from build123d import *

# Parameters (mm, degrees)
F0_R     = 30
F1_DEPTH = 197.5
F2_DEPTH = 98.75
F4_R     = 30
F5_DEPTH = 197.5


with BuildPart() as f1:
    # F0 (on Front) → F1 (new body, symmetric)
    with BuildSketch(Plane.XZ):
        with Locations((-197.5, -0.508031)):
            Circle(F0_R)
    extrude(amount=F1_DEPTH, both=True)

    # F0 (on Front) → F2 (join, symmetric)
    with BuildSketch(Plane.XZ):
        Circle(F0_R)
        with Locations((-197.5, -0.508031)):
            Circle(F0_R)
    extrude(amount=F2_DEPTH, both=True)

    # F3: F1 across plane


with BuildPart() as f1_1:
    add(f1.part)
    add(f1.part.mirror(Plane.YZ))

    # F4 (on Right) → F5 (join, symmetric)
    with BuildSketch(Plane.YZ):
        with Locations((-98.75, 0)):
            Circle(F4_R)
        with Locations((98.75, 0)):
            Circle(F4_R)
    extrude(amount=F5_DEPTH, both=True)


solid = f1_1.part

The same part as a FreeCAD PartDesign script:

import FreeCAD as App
import Part
import Sketcher

V = App.Vector
Q = App.Units.Quantity

doc = App.newDocument("Part")
params = doc.addObject("Spreadsheet::Sheet", "Params")
for row, (alias, value) in enumerate([
    ("sketch1_diameter", "60 mm"),
    ("pad1_length", "395 mm"),
    ("sketch2_diameter", "60 mm"),
    ("pad2_length", "197.5 mm"),
    ("sketch3_diameter", "60 mm"),
    ("pad3_length", "395 mm"),
], start=1):
    params.set(f"A{row}", alias)
    params.set(f"B{row}", "=" + value)
    params.setAlias(f"B{row}", alias)

body = doc.addObject("PartDesign::Body", "Body")
body.AllowCompound = True

# Sketch on XZ plane
sketch1 = doc.addObject("Sketcher::SketchObject", "Sketch")
body.addObject(sketch1)
sketch1.AttachmentSupport = (doc.XZ_Plane, [""])
sketch1.MapMode = "FlatFace"
sketch1.addGeometry(Part.Circle(V(-198, -1, 0), V(0, 0, 1), 30), False)
sketch1.addConstraint(Sketcher.Constraint("Diameter", 0, Q("60 mm")))
sketch1.addConstraint(Sketcher.Constraint("DistanceX", 0, 3, -1, 1, Q("197.5 mm")))
sketch1.addConstraint(Sketcher.Constraint("DistanceY", 0, 3, -1, 1, Q("0.508031 mm")))
sketch1.setExpression("Constraints[0]", "Params.sketch1_diameter")
pad1 = doc.addObject("PartDesign::Pad", "Pad")
body.addObject(pad1)
pad1.Profile = sketch1
pad1.setExpression("Length", "Params.pad1_length")
pad1.Midplane = True

# Sketch on XZ plane
sketch2 = doc.addObject("Sketcher::SketchObject", "Sketch001")
body.addObject(sketch2)
sketch2.AttachmentSupport = (doc.XZ_Plane, [""])
sketch2.MapMode = "FlatFace"
sketch2.addGeometry(Part.Circle(V(0, 0, 0), V(0, 0, 1), 30), False)
sketch2.addGeometry(Part.Circle(V(-198, -1, 0), V(0, 0, 1), 30), False)
sketch2.addConstraint(Sketcher.Constraint("Coincident", 0, 3, -1, 1))
sketch2.addConstraint(Sketcher.Constraint("Equal", 0, 1))
sketch2.addConstraint(Sketcher.Constraint("Diameter", 0, Q("60 mm")))
sketch2.addConstraint(Sketcher.Constraint("DistanceX", 1, 3, -1, 1, Q("197.5 mm")))
sketch2.addConstraint(Sketcher.Constraint("DistanceY", 1, 3, -1, 1, Q("0.508031 mm")))
sketch2.setExpression("Constraints[2]", "Params.sketch2_diameter")
pad2 = doc.addObject("PartDesign::Pad", "Pad001")
body.addObject(pad2)
pad2.Profile = sketch2
pad2.setExpression("Length", "Params.pad2_length")
pad2.Midplane = True
body2 = doc.addObject("PartDesign::Body", "Body001")
body2.AllowCompound = True
doc.recompute()

body2.BaseFeature = body
doc.recompute()

mirroring = doc.addObject("Part::Mirroring", "Mirroring")
mirroring.Source = body
mirroring.Base = V(0, 0, 0)
mirroring.Normal = V(1, 0, 0)
body3 = doc.addObject("PartDesign::Body", "Body002")
body3.BaseFeature = mirroring
boolean = doc.addObject("PartDesign::Boolean", "Boolean")
body2.addObject(boolean)
boolean.Type = "Fuse"
boolean.addObjects([body3])
doc.recompute()

# Sketch on YZ plane
sketch3 = doc.addObject("Sketcher::SketchObject", "Sketch002")
body2.addObject(sketch3)
sketch3.AttachmentSupport = (doc.getObject("YZ_Plane001"), [""])
sketch3.MapMode = "FlatFace"
sketch3.addGeometry(Part.Circle(V(-99, 0, 0), V(0, 0, 1), 30), False)
sketch3.addGeometry(Part.Circle(V(99, 0, 0), V(0, 0, 1), 30), False)
sketch3.addConstraint(Sketcher.Constraint("Equal", 0, 1))
sketch3.addConstraint(Sketcher.Constraint("Symmetric", 0, 3, 1, 3, -1, 1))
sketch3.addConstraint(Sketcher.Constraint("PointOnObject", 0, 3, -1))
sketch3.addConstraint(Sketcher.Constraint("Diameter", 0, Q("60 mm")))
sketch3.addConstraint(Sketcher.Constraint("DistanceX", 0, 3, 1, 3, Q("197.5 mm")))
sketch3.setExpression("Constraints[3]", "Params.sketch3_diameter")
pad3 = doc.addObject("PartDesign::Pad", "Pad002")
body2.addObject(pad3)
pad3.Profile = sketch3
pad3.setExpression("Length", "Params.pad3_length")
pad3.Midplane = True
mirroring.Visibility = False

doc.recompute()
